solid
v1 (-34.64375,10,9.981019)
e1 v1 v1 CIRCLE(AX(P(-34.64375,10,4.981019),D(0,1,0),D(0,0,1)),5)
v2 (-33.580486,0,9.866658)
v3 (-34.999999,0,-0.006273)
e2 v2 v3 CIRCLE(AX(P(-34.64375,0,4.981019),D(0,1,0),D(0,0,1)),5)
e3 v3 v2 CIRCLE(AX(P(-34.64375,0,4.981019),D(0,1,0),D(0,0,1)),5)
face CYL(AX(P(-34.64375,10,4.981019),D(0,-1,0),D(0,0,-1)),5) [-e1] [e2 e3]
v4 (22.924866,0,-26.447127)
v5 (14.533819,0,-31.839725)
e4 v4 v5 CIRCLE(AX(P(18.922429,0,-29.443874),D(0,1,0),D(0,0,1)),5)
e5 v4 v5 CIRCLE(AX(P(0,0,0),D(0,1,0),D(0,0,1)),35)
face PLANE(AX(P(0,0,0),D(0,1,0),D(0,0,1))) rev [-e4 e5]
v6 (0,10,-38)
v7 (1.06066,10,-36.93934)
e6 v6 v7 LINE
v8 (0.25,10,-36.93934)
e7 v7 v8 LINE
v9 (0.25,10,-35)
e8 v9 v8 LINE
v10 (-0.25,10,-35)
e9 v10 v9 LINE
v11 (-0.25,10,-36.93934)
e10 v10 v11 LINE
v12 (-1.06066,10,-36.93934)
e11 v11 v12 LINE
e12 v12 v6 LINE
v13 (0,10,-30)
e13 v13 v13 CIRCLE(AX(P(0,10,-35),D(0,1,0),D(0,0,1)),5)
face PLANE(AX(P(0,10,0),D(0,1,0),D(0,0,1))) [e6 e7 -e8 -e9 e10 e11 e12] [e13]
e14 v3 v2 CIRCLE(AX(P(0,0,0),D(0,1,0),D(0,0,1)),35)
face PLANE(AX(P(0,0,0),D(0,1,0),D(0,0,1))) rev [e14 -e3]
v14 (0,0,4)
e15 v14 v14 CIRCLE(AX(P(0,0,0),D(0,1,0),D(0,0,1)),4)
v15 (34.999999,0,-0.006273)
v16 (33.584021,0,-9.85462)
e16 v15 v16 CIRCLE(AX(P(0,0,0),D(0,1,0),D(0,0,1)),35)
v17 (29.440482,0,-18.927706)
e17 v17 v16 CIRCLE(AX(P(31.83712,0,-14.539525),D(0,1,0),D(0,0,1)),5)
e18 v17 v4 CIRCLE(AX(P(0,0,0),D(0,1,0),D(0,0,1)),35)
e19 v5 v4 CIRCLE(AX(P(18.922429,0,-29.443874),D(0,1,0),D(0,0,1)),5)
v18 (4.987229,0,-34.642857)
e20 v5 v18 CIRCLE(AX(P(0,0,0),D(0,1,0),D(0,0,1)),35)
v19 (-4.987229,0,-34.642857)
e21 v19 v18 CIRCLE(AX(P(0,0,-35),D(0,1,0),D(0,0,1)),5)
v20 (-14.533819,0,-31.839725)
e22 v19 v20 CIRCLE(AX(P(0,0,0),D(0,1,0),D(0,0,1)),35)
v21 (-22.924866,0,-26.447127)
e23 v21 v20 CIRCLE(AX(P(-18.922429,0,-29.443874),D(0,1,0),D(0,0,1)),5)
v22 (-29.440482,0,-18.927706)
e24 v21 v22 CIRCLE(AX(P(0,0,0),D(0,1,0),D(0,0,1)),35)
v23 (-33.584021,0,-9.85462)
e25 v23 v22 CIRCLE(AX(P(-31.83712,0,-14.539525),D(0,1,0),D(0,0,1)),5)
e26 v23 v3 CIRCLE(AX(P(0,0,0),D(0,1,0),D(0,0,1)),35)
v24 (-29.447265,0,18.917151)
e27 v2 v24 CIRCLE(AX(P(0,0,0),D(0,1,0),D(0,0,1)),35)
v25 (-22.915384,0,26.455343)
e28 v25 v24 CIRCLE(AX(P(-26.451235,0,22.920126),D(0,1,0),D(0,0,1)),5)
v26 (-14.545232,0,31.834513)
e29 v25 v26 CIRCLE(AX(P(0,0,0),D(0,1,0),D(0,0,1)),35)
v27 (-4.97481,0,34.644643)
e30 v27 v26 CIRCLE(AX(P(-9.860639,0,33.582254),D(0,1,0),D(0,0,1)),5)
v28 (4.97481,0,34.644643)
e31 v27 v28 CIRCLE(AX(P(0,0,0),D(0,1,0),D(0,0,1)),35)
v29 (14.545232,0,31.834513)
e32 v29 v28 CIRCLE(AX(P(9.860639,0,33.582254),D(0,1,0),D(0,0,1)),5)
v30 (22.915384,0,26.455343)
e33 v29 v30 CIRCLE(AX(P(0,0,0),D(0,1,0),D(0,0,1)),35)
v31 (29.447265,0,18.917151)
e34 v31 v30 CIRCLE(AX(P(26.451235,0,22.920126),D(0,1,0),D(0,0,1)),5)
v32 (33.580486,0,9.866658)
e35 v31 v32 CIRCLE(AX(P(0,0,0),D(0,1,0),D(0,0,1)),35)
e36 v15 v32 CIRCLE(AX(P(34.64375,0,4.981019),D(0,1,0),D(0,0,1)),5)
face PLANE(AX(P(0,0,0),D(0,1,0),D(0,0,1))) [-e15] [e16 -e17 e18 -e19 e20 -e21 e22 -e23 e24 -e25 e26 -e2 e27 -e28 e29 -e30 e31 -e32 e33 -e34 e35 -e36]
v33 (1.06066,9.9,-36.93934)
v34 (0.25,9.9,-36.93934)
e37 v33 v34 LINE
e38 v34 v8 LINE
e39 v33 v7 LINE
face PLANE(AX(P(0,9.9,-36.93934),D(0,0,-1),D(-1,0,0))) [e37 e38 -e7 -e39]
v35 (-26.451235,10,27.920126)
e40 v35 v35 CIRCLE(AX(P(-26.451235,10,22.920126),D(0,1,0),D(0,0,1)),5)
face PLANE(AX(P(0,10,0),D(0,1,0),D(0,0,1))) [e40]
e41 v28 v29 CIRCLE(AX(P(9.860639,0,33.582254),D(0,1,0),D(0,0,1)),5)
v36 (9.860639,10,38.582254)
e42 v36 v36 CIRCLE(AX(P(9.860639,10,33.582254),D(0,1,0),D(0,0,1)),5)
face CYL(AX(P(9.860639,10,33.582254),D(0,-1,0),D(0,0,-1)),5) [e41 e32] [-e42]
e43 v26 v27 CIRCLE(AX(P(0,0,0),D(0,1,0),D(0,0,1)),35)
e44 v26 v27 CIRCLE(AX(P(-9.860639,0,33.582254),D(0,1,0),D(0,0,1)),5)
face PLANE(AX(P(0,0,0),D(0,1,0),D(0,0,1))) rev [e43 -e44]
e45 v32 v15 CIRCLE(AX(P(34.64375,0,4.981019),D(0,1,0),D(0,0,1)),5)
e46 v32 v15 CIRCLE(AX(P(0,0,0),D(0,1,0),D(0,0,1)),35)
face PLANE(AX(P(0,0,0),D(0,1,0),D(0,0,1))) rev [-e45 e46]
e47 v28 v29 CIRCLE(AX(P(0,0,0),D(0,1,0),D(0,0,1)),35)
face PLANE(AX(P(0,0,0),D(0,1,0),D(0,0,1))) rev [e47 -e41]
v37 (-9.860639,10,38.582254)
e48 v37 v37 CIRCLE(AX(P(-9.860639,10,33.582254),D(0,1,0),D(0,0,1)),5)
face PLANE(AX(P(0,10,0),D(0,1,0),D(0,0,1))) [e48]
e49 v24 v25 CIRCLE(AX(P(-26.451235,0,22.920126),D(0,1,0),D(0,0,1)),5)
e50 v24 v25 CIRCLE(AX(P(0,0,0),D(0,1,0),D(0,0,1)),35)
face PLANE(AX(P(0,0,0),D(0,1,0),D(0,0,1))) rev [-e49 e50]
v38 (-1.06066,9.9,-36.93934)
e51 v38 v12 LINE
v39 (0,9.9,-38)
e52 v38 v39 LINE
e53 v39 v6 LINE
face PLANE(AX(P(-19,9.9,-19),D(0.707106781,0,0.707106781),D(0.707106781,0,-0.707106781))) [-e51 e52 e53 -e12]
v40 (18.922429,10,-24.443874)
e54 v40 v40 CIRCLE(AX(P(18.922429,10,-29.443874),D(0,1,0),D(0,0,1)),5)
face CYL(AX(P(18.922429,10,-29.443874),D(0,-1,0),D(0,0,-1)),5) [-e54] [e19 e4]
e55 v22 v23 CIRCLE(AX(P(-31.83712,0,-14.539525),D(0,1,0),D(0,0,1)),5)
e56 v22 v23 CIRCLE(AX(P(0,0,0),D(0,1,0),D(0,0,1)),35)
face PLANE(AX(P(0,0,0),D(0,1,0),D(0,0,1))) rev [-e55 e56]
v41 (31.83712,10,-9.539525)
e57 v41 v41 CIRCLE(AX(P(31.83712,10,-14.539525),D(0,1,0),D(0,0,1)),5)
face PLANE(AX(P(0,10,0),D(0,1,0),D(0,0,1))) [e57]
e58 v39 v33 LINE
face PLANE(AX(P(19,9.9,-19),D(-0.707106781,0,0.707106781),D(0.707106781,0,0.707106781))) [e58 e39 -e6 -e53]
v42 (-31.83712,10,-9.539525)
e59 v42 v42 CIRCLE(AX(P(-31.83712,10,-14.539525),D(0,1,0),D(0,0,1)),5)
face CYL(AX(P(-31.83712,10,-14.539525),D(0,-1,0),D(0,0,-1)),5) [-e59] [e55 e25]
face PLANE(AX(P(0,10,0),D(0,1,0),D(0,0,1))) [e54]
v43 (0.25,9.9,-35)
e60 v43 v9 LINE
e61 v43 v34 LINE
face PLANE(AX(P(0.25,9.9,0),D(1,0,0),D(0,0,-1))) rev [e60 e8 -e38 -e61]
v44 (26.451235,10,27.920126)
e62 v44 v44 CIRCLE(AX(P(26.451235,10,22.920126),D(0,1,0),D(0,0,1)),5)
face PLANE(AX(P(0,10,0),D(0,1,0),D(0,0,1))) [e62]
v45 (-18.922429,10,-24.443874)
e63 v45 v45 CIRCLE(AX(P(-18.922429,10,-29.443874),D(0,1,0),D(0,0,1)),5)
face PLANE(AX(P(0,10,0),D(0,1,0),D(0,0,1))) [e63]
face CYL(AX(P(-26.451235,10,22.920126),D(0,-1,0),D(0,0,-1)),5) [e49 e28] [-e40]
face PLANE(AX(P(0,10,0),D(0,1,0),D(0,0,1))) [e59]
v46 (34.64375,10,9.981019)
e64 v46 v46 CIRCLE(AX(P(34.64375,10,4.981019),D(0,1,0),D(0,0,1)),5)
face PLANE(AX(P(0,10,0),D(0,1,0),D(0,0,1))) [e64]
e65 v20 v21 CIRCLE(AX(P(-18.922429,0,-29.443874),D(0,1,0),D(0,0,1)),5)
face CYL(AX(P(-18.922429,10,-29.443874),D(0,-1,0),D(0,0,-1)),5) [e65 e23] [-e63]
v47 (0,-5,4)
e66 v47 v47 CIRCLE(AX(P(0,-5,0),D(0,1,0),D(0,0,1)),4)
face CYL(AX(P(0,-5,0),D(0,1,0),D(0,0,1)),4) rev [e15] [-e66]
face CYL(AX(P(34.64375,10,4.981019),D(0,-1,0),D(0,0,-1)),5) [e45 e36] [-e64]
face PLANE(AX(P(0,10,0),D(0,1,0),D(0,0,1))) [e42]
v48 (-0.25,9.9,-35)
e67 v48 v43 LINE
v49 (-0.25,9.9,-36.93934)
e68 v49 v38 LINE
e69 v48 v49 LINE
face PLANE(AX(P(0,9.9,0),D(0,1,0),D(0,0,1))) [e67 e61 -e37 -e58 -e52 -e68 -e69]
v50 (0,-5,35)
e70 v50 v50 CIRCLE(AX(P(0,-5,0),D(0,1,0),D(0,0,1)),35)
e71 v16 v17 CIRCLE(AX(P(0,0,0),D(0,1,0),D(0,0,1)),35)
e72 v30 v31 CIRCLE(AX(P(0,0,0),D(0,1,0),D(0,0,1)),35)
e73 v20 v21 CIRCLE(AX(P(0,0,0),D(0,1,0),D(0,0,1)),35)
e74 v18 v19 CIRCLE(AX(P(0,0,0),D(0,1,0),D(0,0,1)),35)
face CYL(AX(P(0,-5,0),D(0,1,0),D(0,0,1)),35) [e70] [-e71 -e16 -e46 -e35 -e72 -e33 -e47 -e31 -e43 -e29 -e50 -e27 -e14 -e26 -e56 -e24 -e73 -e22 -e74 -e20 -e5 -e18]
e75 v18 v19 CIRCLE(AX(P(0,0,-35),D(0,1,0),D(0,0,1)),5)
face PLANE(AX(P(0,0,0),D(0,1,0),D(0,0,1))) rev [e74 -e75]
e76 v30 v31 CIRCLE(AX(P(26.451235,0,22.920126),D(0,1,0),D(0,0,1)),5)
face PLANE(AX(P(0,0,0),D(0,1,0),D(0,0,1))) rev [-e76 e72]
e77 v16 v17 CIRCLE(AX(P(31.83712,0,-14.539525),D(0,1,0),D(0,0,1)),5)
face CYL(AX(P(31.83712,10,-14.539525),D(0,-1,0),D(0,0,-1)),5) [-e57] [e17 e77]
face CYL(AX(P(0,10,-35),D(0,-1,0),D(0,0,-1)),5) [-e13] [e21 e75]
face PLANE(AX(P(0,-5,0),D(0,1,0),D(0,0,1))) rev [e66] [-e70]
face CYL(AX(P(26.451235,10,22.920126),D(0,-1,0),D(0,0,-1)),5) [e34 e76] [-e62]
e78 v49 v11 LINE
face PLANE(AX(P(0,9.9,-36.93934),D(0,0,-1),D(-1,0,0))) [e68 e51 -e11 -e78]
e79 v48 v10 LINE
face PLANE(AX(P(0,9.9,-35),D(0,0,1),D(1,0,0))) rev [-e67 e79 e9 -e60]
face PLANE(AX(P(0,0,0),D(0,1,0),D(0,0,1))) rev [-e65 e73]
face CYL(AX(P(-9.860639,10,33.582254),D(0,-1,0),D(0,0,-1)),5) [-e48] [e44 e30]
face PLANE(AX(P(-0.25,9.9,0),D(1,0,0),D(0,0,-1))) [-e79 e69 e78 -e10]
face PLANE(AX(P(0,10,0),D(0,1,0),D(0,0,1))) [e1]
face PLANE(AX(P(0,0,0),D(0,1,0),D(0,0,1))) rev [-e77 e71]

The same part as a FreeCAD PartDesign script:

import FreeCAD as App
import Part
import Sketcher

doc = App.newDocument("Part")
body = doc.addObject("PartDesign::Body", "Body")

sketch1 = doc.addObject("Sketcher::SketchObject", "Sketch")
body.addObject(sketch1)
sketch1.AttachmentSupport = (doc.XZ_Plane, [""])
sketch1.MapMode = "FlatFace"
sketch1.addGeometry(Part.Circle(App.Vector(0, -35, 0), App.Vector(0, 0, 1), 5), False)
sketch1.addConstraint(Sketcher.Constraint("PointOnObject", 0, 3, -2))
sketch1.addConstraint(Sketcher.Constraint("Diameter", 0, 10.0))
sketch1.addConstraint(Sketcher.Constraint("DistanceY", 0, 3, -1, 1, 35.0))
pad1 = doc.addObject("PartDesign::Pad", "Pad")
body.addObject(pad1)
pad1.Profile = sketch1
pad1.Length = 10
pad1.Reversed = True
body2 = doc.addObject("PartDesign::Body", "Body001")

sketch2 = doc.addObject("Sketcher::SketchObject", "Sketch001")
body2.addObject(sketch2)
sketch2.AttachmentSupport = (doc.getObject("XZ_Plane001"), [""])
sketch2.MapMode = "FlatFace"
sketch2.addGeometry(Part.Circle(App.Vector(19, -29, 0), App.Vector(0, 0, 1), 5), False)
sketch2.addConstraint(Sketcher.Constraint("Diameter", 0, 10.0))
sketch2.addConstraint(Sketcher.Constraint("DistanceX", -1, 1, 0, 3, 18.922429))
sketch2.addConstraint(Sketcher.Constraint("DistanceY", 0, 3, -1, 1, 29.443874))
pad2 = doc.addObject("PartDesign::Pad", "Pad001")
body2.addObject(pad2)
pad2.Profile = sketch2
pad2.Length = 10
pad2.Reversed = True
body3 = doc.addObject("PartDesign::Body", "Body002")

sketch3 = doc.addObject("Sketcher::SketchObject", "Sketch002")
body3.addObject(sketch3)
sketch3.AttachmentSupport = (doc.getObject("XZ_Plane002"), [""])
sketch3.MapMode = "FlatFace"
sketch3.addGeometry(Part.Circle(App.Vector(32, -15, 0), App.Vector(0, 0, 1), 5), False)
sketch3.addConstraint(Sketcher.Constraint("Diameter", 0, 10.0))
sketch3.addConstraint(Sketcher.Constraint("DistanceX", -1, 1, 0, 3, 31.83712))
sketch3.addConstraint(Sketcher.Constraint("DistanceY", 0, 3, -1, 1, 14.539525))
pad3 = doc.addObject("PartDesign::Pad", "Pad002")
body3.addObject(pad3)
pad3.Profile = sketch3
pad3.Length = 10
pad3.Reversed = True
body4 = doc.addObject("PartDesign::Body", "Body003")

sketch4 = doc.addObject("Sketcher::SketchObject", "Sketch003")
body4.addObject(sketch4)
sketch4.AttachmentSupport = (doc.getObject("XZ_Plane003"), [""])
sketch4.MapMode = "FlatFace"
sketch4.addGeometry(Part.Circle(App.Vector(35, 5, 0), App.Vector(0, 0, 1), 5), False)
sketch4.addConstraint(Sketcher.Constraint("Diameter", 0, 10.0))
sketch4.addConstraint(Sketcher.Constraint("DistanceX", -1, 1, 0, 3, 34.64375))
sketch4.addConstraint(Sketcher.Constraint("DistanceY", -1, 1, 0, 3, 4.981019))
pad4 = doc.addObject("PartDesign::Pad", "Pad003")
body4.addObject(pad4)
pad4.Profile = sketch4
pad4.Length = 10
pad4.Reversed = True
body5 = doc.addObject("PartDesign::Body", "Body004")

sketch5 = doc.addObject("Sketcher::SketchObject", "Sketch004")
body5.addObject(sketch5)
sketch5.AttachmentSupport = (doc.getObject("XZ_Plane004"), [""])
sketch5.MapMode = "FlatFace"
sketch5.addGeometry(Part.Circle(App.Vector(26, 23, 0), App.Vector(0, 0, 1), 5), False)
sketch5.addConstraint(Sketcher.Constraint("Diameter", 0, 10.0))
sketch5.addConstraint(Sketcher.Constraint("DistanceX", -1, 1, 0, 3, 26.451235))
sketch5.addConstraint(Sketcher.Constraint("DistanceY", -1, 1, 0, 3, 22.920126))
pad5 = doc.addObject("PartDesign::Pad", "Pad004")
body5.addObject(pad5)
pad5.Profile = sketch5
pad5.Length = 10
pad5.Reversed = True
body6 = doc.addObject("PartDesign::Body", "Body005")

sketch6 = doc.addObject("Sketcher::SketchObject", "Sketch005")
body6.addObject(sketch6)
sketch6.AttachmentSupport = (doc.getObject("XZ_Plane005"), [""])
sketch6.MapMode = "FlatFace"
sketch6.addGeometry(Part.Circle(App.Vector(10, 34, 0), App.Vector(0, 0, 1), 5), False)
sketch6.addConstraint(Sketcher.Constraint("Diameter", 0, 10.0))
sketch6.addConstraint(Sketcher.Constraint("DistanceX", -1, 1, 0, 3, 9.860639))
sketch6.addConstraint(Sketcher.Constraint("DistanceY", -1, 1, 0, 3, 33.582254))
pad6 = doc.addObject("PartDesign::Pad", "Pad005")
body6.addObject(pad6)
pad6.Profile = sketch6
pad6.Length = 10
pad6.Reversed = True
body7 = doc.addObject("PartDesign::Body", "Body006")

sketch7 = doc.addObject("Sketcher::SketchObject", "Sketch006")
body7.addObject(sketch7)
sketch7.AttachmentSupport = (doc.getObject("XZ_Plane006"), [""])
sketch7.MapMode = "FlatFace"
sketch7.addGeometry(Part.Circle(App.Vector(-10, 34, 0), App.Vector(0, 0, 1), 5), False)
sketch7.addConstraint(Sketcher.Constraint("Diameter", 0, 10.0))
sketch7.addConstraint(Sketcher.Constraint("DistanceX", 0, 3, -1, 1, 9.860639))
sketch7.addConstraint(Sketcher.Constraint("DistanceY", -1, 1, 0, 3, 33.582254))
pad7 = doc.addObject("PartDesign::Pad", "Pad006")
body7.addObject(pad7)
pad7.Profile = sketch7
pad7.Length = 10
pad7.Reversed = True
body8 = doc.addObject("PartDesign::Body", "Body007")

sketch8 = doc.addObject("Sketcher::SketchObject", "Sketch007")
body8.addObject(sketch8)
sketch8.AttachmentSupport = (doc.getObject("XZ_Plane007"), [""])
sketch8.MapMode = "FlatFace"
sketch8.addGeometry(Part.Circle(App.Vector(-26, 23, 0), App.Vector(0, 0, 1), 5), False)
sketch8.addConstraint(Sketcher.Constraint("Diameter", 0, 10.0))
sketch8.addConstraint(Sketcher.Constraint("DistanceX", 0, 3, -1, 1, 26.451235))
sketch8.addConstraint(Sketcher.Constraint("DistanceY", -1, 1, 0, 3, 22.920126))
pad8 = doc.addObject("PartDesign::Pad", "Pad007")
body8.addObject(pad8)
pad8.Profile = sketch8
pad8.Length = 10
pad8.Reversed = True
body9 = doc.addObject("PartDesign::Body", "Body008")

sketch9 = doc.addObject("Sketcher::SketchObject", "Sketch008")
body9.addObject(sketch9)
sketch9.AttachmentSupport = (doc.getObject("XZ_Plane008"), [""])
sketch9.MapMode = "FlatFace"
sketch9.addGeometry(Part.Circle(App.Vector(-35, 5, 0), App.Vector(0, 0, 1), 5), False)
sketch9.addConstraint(Sketcher.Constraint("Diameter", 0, 10.0))
sketch9.addConstraint(Sketcher.Constraint("DistanceX", 0, 3, -1, 1, 34.64375))
sketch9.addConstraint(Sketcher.Constraint("DistanceY", -1, 1, 0, 3, 4.981019))
pad9 = doc.addObject("PartDesign::Pad", "Pad008")
body9.addObject(pad9)
pad9.Profile = sketch9
pad9.Length = 10
pad9.Reversed = True
body10 = doc.addObject("PartDesign::Body", "Body009")

sketch10 = doc.addObject("Sketcher::SketchObject", "Sketch009")
body10.addObject(sketch10)
sketch10.AttachmentSupport = (doc.getObject("XZ_Plane009"), [""])
sketch10.MapMode = "FlatFace"
sketch10.addGeometry(Part.Circle(App.Vector(-32, -15, 0), App.Vector(0, 0, 1), 5), False)
sketch10.addConstraint(Sketcher.Constraint("Diameter", 0, 10.0))
sketch10.addConstraint(Sketcher.Constraint("DistanceX", 0, 3, -1, 1, 31.83712))
sketch10.addConstraint(Sketcher.Constraint("DistanceY", 0, 3, -1, 1, 14.539525))
pad10 = doc.addObject("PartDesign::Pad", "Pad009")
body10.addObject(pad10)
pad10.Profile = sketch10
pad10.Length = 10
pad10.Reversed = True
body11 = doc.addObject("PartDesign::Body", "Body010")

sketch11 = doc.addObject("Sketcher::SketchObject", "Sketch010")
body11.addObject(sketch11)
sketch11.AttachmentSupport = (doc.getObject("XZ_Plane010"), [""])
sketch11.MapMode = "FlatFace"
sketch11.addGeometry(Part.Circle(App.Vector(-19, -29, 0), App.Vector(0, 0, 1), 5), False)
sketch11.addConstraint(Sketcher.Constraint("Diameter", 0, 10.0))
sketch11.addConstraint(Sketcher.Constraint("DistanceX", 0, 3, -1, 1, 18.922429))
sketch11.addConstraint(Sketcher.Constraint("DistanceY", 0, 3, -1, 1, 29.443874))
pad11 = doc.addObject("PartDesign::Pad", "Pad010")
body11.addObject(pad11)
pad11.Profile = sketch11
pad11.Length = 10
pad11.Reversed = True
body.AllowCompound = True
doc.recompute()

boolean = doc.addObject("PartDesign::Boolean", "Boolean")
body.addObject(boolean)
boolean.Type = "Fuse"
boolean.addObjects([body2])
doc.recompute()

boolean2 = doc.addObject("PartDesign::Boolean", "Boolean001")
body.addObject(boolean2)
boolean2.Type = "Fuse"
boolean2.addObjects([body3])
doc.recompute()

boolean3 = doc.addObject("PartDesign::Boolean", "Boolean002")
body.addObject(boolean3)
boolean3.Type = "Fuse"
boolean3.addObjects([body4])
doc.recompute()

boolean4 = doc.addObject("PartDesign::Boolean", "Boolean003")
body.addObject(boolean4)
boolean4.Type = "Fuse"
boolean4.addObjects([body5])
doc.recompute()

boolean5 = doc.addObject("PartDesign::Boolean", "Boolean004")
body.addObject(boolean5)
boolean5.Type = "Fuse"
boolean5.addObjects([body6])
doc.recompute()

boolean6 = doc.addObject("PartDesign::Boolean", "Boolean005")
body.addObject(boolean6)
boolean6.Type = "Fuse"
boolean6.addObjects([body7])
doc.recompute()

boolean7 = doc.addObject("PartDesign::Boolean", "Boolean006")
body.addObject(boolean7)
boolean7.Type = "Fuse"
boolean7.addObjects([body8])
doc.recompute()

boolean8 = doc.addObject("PartDesign::Boolean", "Boolean007")
body.addObject(boolean8)
boolean8.Type = "Fuse"
boolean8.addObjects([body9])
doc.recompute()

boolean9 = doc.addObject("PartDesign::Boolean", "Boolean008")
body.addObject(boolean9)
boolean9.Type = "Fuse"
boolean9.addObjects([body10])
doc.recompute()

boolean10 = doc.addObject("PartDesign::Boolean", "Boolean009")
body.addObject(boolean10)
boolean10.Type = "Fuse"
boolean10.addObjects([body11])

sketch12 = doc.addObject("Sketcher::SketchObject", "Sketch011")
body.addObject(sketch12)
sketch12.AttachmentSupport = (doc.XZ_Plane, [""])
sketch12.MapMode = "FlatFace"
sketch12.addGeometry(Part.Circle(App.Vector(0, 0, 0), App.Vector(0, 0, 1), 35), False)
sketch12.addGeometry(Part.Circle(App.Vector(0, 0, 0), App.Vector(0, 0, 1), 4), False)
sketch12.addConstraint(Sketcher.Constraint("Coincident", 0, 3, -1, 1))
sketch12.addConstraint(Sketcher.Constraint("Coincident", 1, 3, -1, 1))
sketch12.addConstraint(Sketcher.Constraint("Diameter", 0, 70.0))
sketch12.addConstraint(Sketcher.Constraint("Diameter", 1, 8.0))
pad12 = doc.addObject("PartDesign::Pad", "Pad011")
body.addObject(pad12)
pad12.Profile = sketch12
pad12.Length = 5

sketch13 = doc.addObject("Sketcher::SketchObject", "Sketch012")
body.addObject(sketch13)
sketch13.AttachmentSupport = (doc.XZ_Plane, [""])
sketch13.MapMode = "FlatFace"
sketch13.AttachmentOffset = App.Placement(App.Vector(0, 0, -10), App.Rotation())
sketch13.addGeometry(Part.LineSegment(App.Vector(-1.1, -36.9, 0), App.Vector(-0.2, -36.9, 0)), False)
sketch13.addGeometry(Part.LineSegment(App.Vector(-0.2, -36.9, 0), App.Vector(-0.2, -35, 0)), False)
sketch13.addGeometry(Part.LineSegment(App.Vector(-0.2, -35, 0), App.Vector(0.2, -35, 0)), False)
sketch13.addGeometry(Part.LineSegment(App.Vector(0.2, -35, 0), App.Vector(0.2, -36.9, 0)), False)
sketch13.addGeometry(Part.LineSegment(App.Vector(0.2, -36.9, 0), App.Vector(1.1, -36.9, 0)), False)
sketch13.addGeometry(Part.LineSegment(App.Vector(1.1, -36.9, 0), App.Vector(0, -38, 0)), False)
sketch13.addGeometry(Part.LineSegment(App.Vector(0, -38, 0), App.Vector(-1.1, -36.9, 0)), False)
sketch13.addConstraint(Sketcher.Constraint("Coincident", 0, 2, 1, 1))
sketch13.addConstraint(Sketcher.Constraint("Coincident", 1, 2, 2, 1))
sketch13.addConstraint(Sketcher.Constraint("Coincident", 2, 2, 3, 1))
sketch13.addConstraint(Sketcher.Constraint("Coincident", 3, 2, 4, 1))
sketch13.addConstraint(Sketcher.Constraint("Coincident", 4, 2, 5, 1))
sketch13.addConstraint(Sketcher.Constraint("Coincident", 5, 2, 6, 1))
sketch13.addConstraint(Sketcher.Constraint("Coincident", 6, 2, 0, 1))
sketch13.addConstraint(Sketcher.Constraint("Horizontal", 0))
sketch13.addConstraint(Sketcher.Constraint("Vertical", 1))
sketch13.addConstraint(Sketcher.Constraint("Horizontal", 2))
sketch13.addConstraint(Sketcher.Constraint("Vertical", 3))
sketch13.addConstraint(Sketcher.Constraint("Horizontal", 4))
sketch13.addConstraint(Sketcher.Constraint("Symmetric", 0, 2, 3, 2, -2))
sketch13.addConstraint(Sketcher.Constraint("PointOnObject", 5, 2, -2))
sketch13.addConstraint(Sketcher.Constraint("Perpendicular", 5, 6))
sketch13.addConstraint(Sketcher.Constraint("Equal", 0, 4))
sketch13.addConstraint(Sketcher.Constraint("DistanceX", 2, 1, 2, 2, 0.5))
sketch13.addConstraint(Sketcher.Constraint("DistanceY", 1, 2, -1, 1, 35.0))
sketch13.addConstraint(Sketcher.Constraint("DistanceY", 5, 2, -1, 1, 38.0))
sketch13.addConstraint(Sketcher.Constraint("Distance", 5, 1.5))
pocket1 = doc.addObject("PartDesign::Pocket", "Pocket")
body.addObject(pocket1)
pocket1.Profile = sketch13
pocket1.Length = 0.1
pocket1.Reversed = True

doc.recompute()
